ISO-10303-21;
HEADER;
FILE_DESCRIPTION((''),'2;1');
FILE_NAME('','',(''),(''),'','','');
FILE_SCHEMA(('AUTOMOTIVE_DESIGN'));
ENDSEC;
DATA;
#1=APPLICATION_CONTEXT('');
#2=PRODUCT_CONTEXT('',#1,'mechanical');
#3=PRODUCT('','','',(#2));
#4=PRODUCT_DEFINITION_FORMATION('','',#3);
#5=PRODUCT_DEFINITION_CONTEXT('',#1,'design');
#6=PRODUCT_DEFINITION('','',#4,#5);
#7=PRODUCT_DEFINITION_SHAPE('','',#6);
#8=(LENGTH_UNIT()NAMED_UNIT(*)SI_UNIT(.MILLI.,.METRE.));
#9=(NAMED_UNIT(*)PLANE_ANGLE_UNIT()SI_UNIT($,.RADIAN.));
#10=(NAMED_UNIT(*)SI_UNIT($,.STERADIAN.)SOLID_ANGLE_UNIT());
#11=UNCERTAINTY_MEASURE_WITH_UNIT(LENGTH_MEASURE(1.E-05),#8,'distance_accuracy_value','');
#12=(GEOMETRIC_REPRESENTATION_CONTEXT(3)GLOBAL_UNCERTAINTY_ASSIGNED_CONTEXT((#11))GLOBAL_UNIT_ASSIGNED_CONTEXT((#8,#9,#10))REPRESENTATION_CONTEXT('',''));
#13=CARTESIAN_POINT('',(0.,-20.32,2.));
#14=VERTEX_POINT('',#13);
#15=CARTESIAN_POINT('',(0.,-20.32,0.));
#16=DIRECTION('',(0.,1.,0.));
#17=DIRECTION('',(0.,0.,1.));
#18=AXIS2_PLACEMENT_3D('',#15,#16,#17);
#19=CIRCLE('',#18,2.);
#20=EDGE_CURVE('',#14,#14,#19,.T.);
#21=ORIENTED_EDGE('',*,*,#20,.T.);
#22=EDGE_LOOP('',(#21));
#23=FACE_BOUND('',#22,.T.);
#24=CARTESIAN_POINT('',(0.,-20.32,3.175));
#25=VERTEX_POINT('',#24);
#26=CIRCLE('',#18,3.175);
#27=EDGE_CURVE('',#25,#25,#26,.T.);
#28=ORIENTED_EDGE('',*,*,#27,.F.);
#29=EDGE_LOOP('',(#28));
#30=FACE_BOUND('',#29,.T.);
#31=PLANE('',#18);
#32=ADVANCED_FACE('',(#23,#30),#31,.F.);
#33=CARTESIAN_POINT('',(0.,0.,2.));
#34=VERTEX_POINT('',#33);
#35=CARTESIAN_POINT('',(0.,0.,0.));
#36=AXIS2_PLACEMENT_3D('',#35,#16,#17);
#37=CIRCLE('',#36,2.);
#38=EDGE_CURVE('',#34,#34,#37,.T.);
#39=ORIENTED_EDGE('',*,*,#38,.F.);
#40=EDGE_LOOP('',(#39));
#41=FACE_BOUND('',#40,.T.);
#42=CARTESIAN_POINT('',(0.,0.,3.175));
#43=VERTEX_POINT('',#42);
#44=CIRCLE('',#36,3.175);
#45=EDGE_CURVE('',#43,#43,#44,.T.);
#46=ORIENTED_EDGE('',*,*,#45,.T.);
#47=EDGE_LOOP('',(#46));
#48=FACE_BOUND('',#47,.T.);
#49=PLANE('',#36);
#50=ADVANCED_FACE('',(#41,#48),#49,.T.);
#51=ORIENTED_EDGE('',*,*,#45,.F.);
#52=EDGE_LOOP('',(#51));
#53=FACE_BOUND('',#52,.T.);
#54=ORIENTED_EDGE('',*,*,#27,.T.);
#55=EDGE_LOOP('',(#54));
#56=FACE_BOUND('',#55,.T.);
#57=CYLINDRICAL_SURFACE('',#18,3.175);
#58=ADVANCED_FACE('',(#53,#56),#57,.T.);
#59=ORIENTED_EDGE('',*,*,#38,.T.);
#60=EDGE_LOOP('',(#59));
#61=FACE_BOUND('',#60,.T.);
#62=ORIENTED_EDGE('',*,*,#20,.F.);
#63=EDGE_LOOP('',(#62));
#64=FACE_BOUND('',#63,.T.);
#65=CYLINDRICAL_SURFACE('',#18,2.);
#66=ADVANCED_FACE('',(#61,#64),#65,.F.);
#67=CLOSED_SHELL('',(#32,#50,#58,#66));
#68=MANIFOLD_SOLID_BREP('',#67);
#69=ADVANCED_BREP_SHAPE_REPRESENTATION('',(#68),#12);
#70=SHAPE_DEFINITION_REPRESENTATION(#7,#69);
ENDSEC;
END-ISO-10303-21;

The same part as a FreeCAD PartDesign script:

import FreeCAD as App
import Part
import Sketcher

V = App.Vector
Q = App.Units.Quantity

doc = App.newDocument("Part")
body = doc.addObject("PartDesign::Body", "Body")

# Sketch on XZ plane
sketch1 = body.newObject("Sketcher::SketchObject", "Sketch")
sketch1.AttachmentSupport = (doc.getObject("XZ_Plane"), [""])
sketch1.MapMode = "FlatFace"
sketch1.addGeometry(Part.Circle(V(0, 0, 0), V(0, 0, 1), 3.2), False)
sketch1.addGeometry(Part.Circle(V(0, 0, 0), V(0, 0, 1), 2), False)
sketch1.addConstraint(Sketcher.Constraint("Coincident", 0, 3, -1, 1))
sketch1.addConstraint(Sketcher.Constraint("Coincident", 1, 3, -1, 1))
sketch1.addConstraint(Sketcher.Constraint("Diameter", 0, Q("0.25 in")))
sketch1.addConstraint(Sketcher.Constraint("Diameter", 1, 4.0))
pad1 = body.newObject("PartDesign::Pad", "Pad")
pad1.Profile = sketch1
pad1.Length = Q("0.8 in")

doc.recompute()
